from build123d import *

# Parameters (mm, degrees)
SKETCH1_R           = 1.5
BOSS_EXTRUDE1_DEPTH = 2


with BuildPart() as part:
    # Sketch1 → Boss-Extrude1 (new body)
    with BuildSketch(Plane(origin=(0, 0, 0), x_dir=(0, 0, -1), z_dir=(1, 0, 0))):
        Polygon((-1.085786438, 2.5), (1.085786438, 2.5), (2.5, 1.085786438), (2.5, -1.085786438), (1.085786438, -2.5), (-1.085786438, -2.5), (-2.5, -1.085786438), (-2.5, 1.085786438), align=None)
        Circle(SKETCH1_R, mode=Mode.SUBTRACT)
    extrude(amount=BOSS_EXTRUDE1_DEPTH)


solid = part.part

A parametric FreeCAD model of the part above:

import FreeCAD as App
import Part
import Sketcher

V = App.Vector


def add_polygon(sketch, points):
    """Adds a closed chain of lines whose ends are joined by coincident constraints."""
    first, n = sketch.GeometryCount, len(points)
    for a, b in zip(points, points[1:] + points[:1]):
        sketch.addGeometry(Part.LineSegment(App.Vector(*a, 0), App.Vector(*b, 0)), False)
    for i in range(n):
        sketch.addConstraint(Sketcher.Constraint("Coincident", first + i, 2, first + (i + 1) % n, 1))

doc = App.newDocument("Part")
body = doc.addObject("PartDesign::Body", "Body")

# Sketch on YZ plane
sketch1 = body.newObject("Sketcher::SketchObject", "Sketch")
sketch1.AttachmentSupport = (doc.getObject("YZ_Plane"), [""])
sketch1.MapMode = "FlatFace"
add_polygon(sketch1, [(2.5, -1.1), (2.5, 1.1), (1.1, 2.5), (-1.1, 2.5), (-2.5, 1.1), (-2.5, -1.1), (-1.1, -2.5), (1.1, -2.5)])  # lines 0-7
sketch1.addGeometry(Part.Circle(V(0, 0, 0), V(0, 0, 1), 1.5), False)  # 8
sketch1.addConstraint([
    Sketcher.Constraint("Vertical", 0),
    Sketcher.Constraint("Horizontal", 2),
    Sketcher.Constraint("Vertical", 4),
    Sketcher.Constraint("Horizontal", 6),
    Sketcher.Constraint("Coincident", 8, 3, -1, 1),
    Sketcher.Constraint("Symmetric", 0, 2, 4, 2, -1, 1),
    Sketcher.Constraint("Symmetric", 1, 2, 5, 2, -1, 1),
    Sketcher.Constraint("Perpendicular", 1, 3),
    Sketcher.Constraint("Perpendicular", 5, 7),
    Sketcher.Constraint("Horizontal", 0, 2, 3, 2),
    Sketcher.Constraint("Horizontal", 4, 2, 7, 2),
    Sketcher.Constraint("Vertical", 2, 2, 5, 2),
    Sketcher.Constraint("Equal", 6, 0),
    Sketcher.Constraint("Diameter", 8, 3.0),
    Sketcher.Constraint("Distance", 1, 2.0),
    Sketcher.Constraint("DistanceX", 3, 2, 0, 2, 5.0),
])
pad1 = body.newObject("PartDesign::Pad", "Pad")
pad1.Profile = sketch1
pad1.Length = 2

doc.recompute()
